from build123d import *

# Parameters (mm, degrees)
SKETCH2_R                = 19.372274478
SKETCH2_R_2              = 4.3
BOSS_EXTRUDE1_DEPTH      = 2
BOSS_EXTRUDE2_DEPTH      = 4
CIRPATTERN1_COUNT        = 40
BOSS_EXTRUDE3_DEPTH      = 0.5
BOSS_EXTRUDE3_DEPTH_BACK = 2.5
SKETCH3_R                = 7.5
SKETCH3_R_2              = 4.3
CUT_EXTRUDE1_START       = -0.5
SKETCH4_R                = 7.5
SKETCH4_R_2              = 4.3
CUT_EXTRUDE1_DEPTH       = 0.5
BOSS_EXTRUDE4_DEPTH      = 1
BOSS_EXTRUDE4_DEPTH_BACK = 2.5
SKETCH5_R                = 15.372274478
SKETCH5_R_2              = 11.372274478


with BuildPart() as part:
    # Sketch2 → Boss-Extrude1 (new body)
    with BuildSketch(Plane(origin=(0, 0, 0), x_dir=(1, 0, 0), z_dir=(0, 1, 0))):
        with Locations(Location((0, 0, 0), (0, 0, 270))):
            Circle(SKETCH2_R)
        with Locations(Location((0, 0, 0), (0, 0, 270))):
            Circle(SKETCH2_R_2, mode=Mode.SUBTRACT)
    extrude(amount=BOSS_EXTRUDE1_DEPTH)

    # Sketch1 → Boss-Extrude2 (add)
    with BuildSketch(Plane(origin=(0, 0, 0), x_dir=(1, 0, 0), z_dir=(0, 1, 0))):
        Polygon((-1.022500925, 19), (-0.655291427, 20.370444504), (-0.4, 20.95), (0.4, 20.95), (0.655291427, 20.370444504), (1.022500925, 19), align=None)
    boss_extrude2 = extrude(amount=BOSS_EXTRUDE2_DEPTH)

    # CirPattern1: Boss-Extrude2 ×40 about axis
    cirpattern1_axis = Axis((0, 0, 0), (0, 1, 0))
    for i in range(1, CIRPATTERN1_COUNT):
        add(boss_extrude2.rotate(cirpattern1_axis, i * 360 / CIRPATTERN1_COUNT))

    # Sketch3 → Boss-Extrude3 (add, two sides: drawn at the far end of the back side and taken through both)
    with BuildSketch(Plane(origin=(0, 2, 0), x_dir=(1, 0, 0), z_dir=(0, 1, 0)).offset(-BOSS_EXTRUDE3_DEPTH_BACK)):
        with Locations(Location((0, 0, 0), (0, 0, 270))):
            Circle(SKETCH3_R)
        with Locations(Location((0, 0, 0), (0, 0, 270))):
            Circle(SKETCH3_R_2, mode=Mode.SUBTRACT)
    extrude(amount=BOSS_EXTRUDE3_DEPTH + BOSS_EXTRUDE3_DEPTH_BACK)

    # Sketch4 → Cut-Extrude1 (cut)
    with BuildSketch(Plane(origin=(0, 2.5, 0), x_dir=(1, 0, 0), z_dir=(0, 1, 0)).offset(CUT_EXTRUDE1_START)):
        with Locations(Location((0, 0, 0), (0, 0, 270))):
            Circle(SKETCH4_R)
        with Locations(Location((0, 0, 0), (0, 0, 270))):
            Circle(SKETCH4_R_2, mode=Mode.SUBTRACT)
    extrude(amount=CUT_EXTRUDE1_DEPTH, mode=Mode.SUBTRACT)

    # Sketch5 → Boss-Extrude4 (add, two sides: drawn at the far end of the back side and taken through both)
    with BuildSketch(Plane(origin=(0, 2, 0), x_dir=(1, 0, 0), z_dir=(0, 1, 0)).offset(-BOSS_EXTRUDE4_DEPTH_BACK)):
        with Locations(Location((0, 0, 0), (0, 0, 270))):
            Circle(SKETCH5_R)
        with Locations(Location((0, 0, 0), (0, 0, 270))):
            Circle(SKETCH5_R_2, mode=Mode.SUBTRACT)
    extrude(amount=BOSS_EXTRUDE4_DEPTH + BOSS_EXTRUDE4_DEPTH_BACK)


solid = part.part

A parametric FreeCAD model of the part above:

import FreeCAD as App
import Part
import Sketcher
Q = App.Units.Quantity

doc = App.newDocument("Part")
body = doc.addObject("PartDesign::Body", "Body")

# Sketch on XZ plane
sketch1 = body.newObject("Sketcher::SketchObject", "Sketch")
sketch1.AttachmentSupport = (doc.getObject("XZ_Plane"), [""])
sketch1.MapMode = "FlatFace"
sketch1.addGeometry([
    Part.Circle(App.Vector(0, 0, 0), App.Vector(0, 0, 1), 19.4),
    Part.Circle(App.Vector(0, 0, 0), App.Vector(0, 0, 1), 4.3),
], False)
sketch1.addConstraint([
    Sketcher.Constraint("Coincident", 0, 3, -1, 1),
    Sketcher.Constraint("Coincident", 1, 3, -1, 1),
    Sketcher.Constraint("Diameter", 1, Q("8.6 mm")),
    Sketcher.Constraint("Diameter", 0, Q("38.744549 mm")),
])
pad1 = body.newObject("PartDesign::Pad", "Pad")
pad1.Profile = sketch1
pad1.Length = 2
pad1.Reversed = True

# Sketch on XZ plane
sketch2 = body.newObject("Sketcher::SketchObject", "Sketch001")
sketch2.AttachmentSupport = (doc.getObject("XZ_Plane"), [""])
sketch2.MapMode = "FlatFace"
sketch2.addGeometry([
    Part.LineSegment(App.Vector(-0.7, -20.4, 0), App.Vector(-1, -19, 0)),  # 0
    Part.LineSegment(App.Vector(-1, -19, 0), App.Vector(1, -19, 0)),  # 1
    Part.LineSegment(App.Vector(1, -19, 0), App.Vector(0.7, -20.4, 0)),  # 2
    Part.LineSegment(App.Vector(0.7, -20.4, 0), App.Vector(0.4, -20.9, 0)),  # 3
    Part.LineSegment(App.Vector(0.4, -20.9, 0), App.Vector(-0.4, -20.9, 0)),  # 4
    Part.LineSegment(App.Vector(-0.4, -20.9, 0), App.Vector(-0.7, -20.4, 0)),  # 5
], False)
sketch2.addConstraint([
    Sketcher.Constraint("Coincident", 0, 2, 1, 1),
    Sketcher.Constraint("Coincident", 1, 2, 2, 1),
    Sketcher.Constraint("Coincident", 2, 2, 3, 1),
    Sketcher.Constraint("Coincident", 3, 2, 4, 1),
    Sketcher.Constraint("Coincident", 4, 2, 5, 1),
    Sketcher.Constraint("Coincident", 5, 2, 0, 1),
    Sketcher.Constraint("Horizontal", 1),
    Sketcher.Constraint("Horizontal", 4),
    Sketcher.Constraint("Symmetric", 2, 2, 5, 2, -2),
    Sketcher.Constraint("Equal", 0, 2),
    Sketcher.Constraint("Equal", 3, 5),
    Sketcher.Constraint("Angle", 0, Q("105 deg")),
    Sketcher.Constraint("DistanceX", 4, 2, 4, 1, Q("0.8 mm")),
    Sketcher.Constraint("DistanceY", 0, 2, -1, 1, Q("19 mm")),
    Sketcher.Constraint("DistanceX", 1, 1, 1, 2, Q("2.045002 mm")),
    Sketcher.Constraint("DistanceY", 3, 2, -1, 1, Q("20.95 mm")),
    Sketcher.Constraint("Distance", 0, Q("1.418789 mm")),
])
pad2 = body.newObject("PartDesign::Pad", "Pad001")
pad2.Profile = sketch2
pad2.Length = 4
pad2.Reversed = True
doc.recompute()

polarpattern = body.newObject("PartDesign::PolarPattern", "PolarPattern")
polarpattern.Originals = [pad2]
polarpattern.Axis = (doc.getObject("Y_Axis"), [""])
polarpattern.Angle = 360
polarpattern.Occurrences = 40
body.Tip = polarpattern

# Sketch on XZ plane
sketch3 = body.newObject("Sketcher::SketchObject", "Sketch002")
sketch3.AttachmentSupport = (doc.getObject("XZ_Plane"), [""])
sketch3.MapMode = "FlatFace"
sketch3.AttachmentOffset = App.Placement(App.Vector(0, 0, -2), App.Rotation())
sketch3.addGeometry([
    Part.Circle(App.Vector(0, 0, 0), App.Vector(0, 0, 1), 7.5),
    Part.Circle(App.Vector(0, 0, 0), App.Vector(0, 0, 1), 4.3),
], False)
sketch3.addConstraint([
    Sketcher.Constraint("Coincident", 0, 3, -1, 1),
    Sketcher.Constraint("Coincident", 1, 3, -1, 1),
    Sketcher.Constraint("Diameter", 0, Q("15 mm")),
    Sketcher.Constraint("Diameter", 1, Q("8.6 mm")),
])
pad3 = body.newObject("PartDesign::Pad", "Pad002")
pad3.Profile = sketch3
pad3.Type = "TwoLengths"
pad3.Length = 0.5
pad3.Length2 = 2.5
pad3.Reversed = True

# Sketch on XZ plane
sketch4 = body.newObject("Sketcher::SketchObject", "Sketch003")
sketch4.AttachmentSupport = (doc.getObject("XZ_Plane"), [""])
sketch4.MapMode = "FlatFace"
sketch4.AttachmentOffset = App.Placement(App.Vector(0, 0, -2), App.Rotation())
sketch4.addGeometry([
    Part.Circle(App.Vector(0, 0, 0), App.Vector(0, 0, 1), 7.5),
    Part.Circle(App.Vector(0, 0, 0), App.Vector(0, 0, 1), 4.3),
], False)
sketch4.addConstraint([
    Sketcher.Constraint("Coincident", 0, 3, -1, 1),
    Sketcher.Constraint("Coincident", 1, 3, -1, 1),
    Sketcher.Constraint("Diameter", 0, Q("15 mm")),
    Sketcher.Constraint("Diameter", 1, Q("8.6 mm")),
])
pocket1 = body.newObject("PartDesign::Pocket", "Pocket")
pocket1.Profile = sketch4
pocket1.Length = 0.5

# Sketch on XZ plane
sketch5 = body.newObject("Sketcher::SketchObject", "Sketch004")
sketch5.AttachmentSupport = (doc.getObject("XZ_Plane"), [""])
sketch5.MapMode = "FlatFace"
sketch5.AttachmentOffset = App.Placement(App.Vector(0, 0, -2), App.Rotation())
sketch5.addGeometry([
    Part.Circle(App.Vector(0, 0, 0), App.Vector(0, 0, 1), 15),
    Part.Circle(App.Vector(0, 0, 0), App.Vector(0, 0, 1), 11),
], False)
sketch5.addConstraint([
    Sketcher.Constraint("Coincident", 0, 3, -1, 1),
    Sketcher.Constraint("Coincident", 1, 3, -1, 1),
    Sketcher.Constraint("Diameter", 0, Q("30.744549 mm")),
    Sketcher.Constraint("Diameter", 1, Q("22.744549 mm")),
])
pad4 = body.newObject("PartDesign::Pad", "Pad003")
pad4.Profile = sketch5
pad4.Type = "TwoLengths"
pad4.Length = 1
pad4.Length2 = 2.5
pad4.Reversed = True

doc.recompute()
